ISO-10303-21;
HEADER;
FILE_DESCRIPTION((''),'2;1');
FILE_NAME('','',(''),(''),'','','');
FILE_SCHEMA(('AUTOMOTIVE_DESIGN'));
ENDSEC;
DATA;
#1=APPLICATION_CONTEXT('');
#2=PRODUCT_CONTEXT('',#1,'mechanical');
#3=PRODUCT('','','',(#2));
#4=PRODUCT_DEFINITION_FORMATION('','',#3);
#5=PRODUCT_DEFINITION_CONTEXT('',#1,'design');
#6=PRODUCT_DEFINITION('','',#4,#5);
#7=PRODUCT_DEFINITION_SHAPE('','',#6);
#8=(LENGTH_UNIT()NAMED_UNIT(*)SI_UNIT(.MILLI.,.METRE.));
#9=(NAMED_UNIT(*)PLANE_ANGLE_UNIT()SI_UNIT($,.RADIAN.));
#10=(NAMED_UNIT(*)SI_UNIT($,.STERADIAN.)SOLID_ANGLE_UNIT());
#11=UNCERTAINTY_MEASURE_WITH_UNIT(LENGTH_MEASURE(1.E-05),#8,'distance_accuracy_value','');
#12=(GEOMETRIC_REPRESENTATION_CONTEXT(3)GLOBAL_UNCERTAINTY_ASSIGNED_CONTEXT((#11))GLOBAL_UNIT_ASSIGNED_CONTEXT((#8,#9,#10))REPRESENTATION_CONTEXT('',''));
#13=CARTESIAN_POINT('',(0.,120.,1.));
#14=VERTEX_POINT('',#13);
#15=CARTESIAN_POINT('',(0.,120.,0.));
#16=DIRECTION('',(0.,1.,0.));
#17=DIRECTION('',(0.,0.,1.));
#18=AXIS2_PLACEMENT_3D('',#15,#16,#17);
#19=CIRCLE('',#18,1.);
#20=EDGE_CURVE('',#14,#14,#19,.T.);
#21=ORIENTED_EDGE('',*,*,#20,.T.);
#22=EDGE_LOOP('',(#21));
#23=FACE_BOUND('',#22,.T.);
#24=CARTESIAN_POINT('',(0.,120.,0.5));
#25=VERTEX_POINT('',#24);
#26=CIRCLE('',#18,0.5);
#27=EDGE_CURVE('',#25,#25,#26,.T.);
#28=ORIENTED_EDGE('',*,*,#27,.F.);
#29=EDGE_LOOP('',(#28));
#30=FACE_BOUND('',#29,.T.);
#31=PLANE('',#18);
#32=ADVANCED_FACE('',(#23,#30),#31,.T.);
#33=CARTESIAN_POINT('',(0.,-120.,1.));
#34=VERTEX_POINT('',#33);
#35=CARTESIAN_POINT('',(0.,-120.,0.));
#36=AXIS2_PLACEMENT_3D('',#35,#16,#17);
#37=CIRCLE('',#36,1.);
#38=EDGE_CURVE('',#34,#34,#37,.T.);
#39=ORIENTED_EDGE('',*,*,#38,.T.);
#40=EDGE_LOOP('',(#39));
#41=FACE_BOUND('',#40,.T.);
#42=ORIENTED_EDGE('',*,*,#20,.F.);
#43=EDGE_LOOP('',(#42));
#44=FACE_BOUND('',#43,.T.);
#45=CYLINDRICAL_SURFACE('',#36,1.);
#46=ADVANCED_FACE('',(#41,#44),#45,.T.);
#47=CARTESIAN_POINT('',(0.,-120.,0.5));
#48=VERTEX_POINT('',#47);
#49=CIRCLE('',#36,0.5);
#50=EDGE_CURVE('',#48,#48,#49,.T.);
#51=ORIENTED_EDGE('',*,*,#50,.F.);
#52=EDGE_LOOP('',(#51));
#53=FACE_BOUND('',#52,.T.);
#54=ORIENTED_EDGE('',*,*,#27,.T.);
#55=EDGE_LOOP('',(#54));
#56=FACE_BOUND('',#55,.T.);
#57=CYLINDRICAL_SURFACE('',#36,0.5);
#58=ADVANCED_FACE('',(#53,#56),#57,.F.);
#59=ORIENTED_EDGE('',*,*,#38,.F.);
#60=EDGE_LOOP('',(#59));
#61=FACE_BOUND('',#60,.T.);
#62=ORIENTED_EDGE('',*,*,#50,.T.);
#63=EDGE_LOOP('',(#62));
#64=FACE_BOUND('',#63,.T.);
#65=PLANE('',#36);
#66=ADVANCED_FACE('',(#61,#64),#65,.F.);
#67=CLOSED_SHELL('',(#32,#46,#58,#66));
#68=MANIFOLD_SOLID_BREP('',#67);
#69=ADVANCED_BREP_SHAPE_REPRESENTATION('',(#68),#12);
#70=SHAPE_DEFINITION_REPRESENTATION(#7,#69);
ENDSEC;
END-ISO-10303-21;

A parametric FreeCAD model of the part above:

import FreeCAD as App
import Part
import Sketcher
Q = App.Units.Quantity

doc = App.newDocument("Part")
body = doc.addObject("PartDesign::Body", "Body")

# Sketch on XZ plane
sketch1 = body.newObject("Sketcher::SketchObject", "Sketch")
sketch1.AttachmentSupport = (doc.getObject("XZ_Plane"), [""])
sketch1.MapMode = "FlatFace"
sketch1.addGeometry(Part.Circle(App.Vector(0, 0, 0), App.Vector(0, 0, 1), 1), False)
sketch1.addGeometry(Part.Circle(App.Vector(0, 0, 0), App.Vector(0, 0, 1), 0.5), False)
sketch1.addConstraint(Sketcher.Constraint("Coincident", 0, 3, -1, 1))
sketch1.addConstraint(Sketcher.Constraint("Coincident", 1, 3, -1, 1))
sketch1.addConstraint(Sketcher.Constraint("Diameter", 0, Q("2 mm")))
sketch1.addConstraint(Sketcher.Constraint("Diameter", 1, Q("1 mm")))
pad1 = body.newObject("PartDesign::Pad", "Pad")
pad1.Profile = sketch1
pad1.Type = "TwoLengths"
pad1.Length = 120
pad1.Length2 = 120
pad1.Reversed = True

doc.recompute()
